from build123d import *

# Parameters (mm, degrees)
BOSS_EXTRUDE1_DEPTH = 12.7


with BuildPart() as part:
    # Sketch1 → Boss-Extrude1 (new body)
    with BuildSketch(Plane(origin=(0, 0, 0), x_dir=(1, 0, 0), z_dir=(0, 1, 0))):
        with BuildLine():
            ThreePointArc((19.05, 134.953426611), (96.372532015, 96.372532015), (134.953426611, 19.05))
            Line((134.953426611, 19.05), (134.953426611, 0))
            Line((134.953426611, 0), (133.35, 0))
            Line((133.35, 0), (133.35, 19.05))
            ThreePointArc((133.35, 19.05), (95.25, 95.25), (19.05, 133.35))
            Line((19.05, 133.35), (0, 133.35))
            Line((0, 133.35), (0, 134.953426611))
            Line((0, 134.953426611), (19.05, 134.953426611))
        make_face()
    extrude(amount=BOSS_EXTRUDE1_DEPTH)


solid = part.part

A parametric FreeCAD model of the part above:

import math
import FreeCAD as App
import Part
import Sketcher
Q = App.Units.Quantity

doc = App.newDocument("Part")
body = doc.addObject("PartDesign::Body", "Body")

# Sketch on XZ plane
sketch1 = body.newObject("Sketcher::SketchObject", "Sketch")
sketch1.AttachmentSupport = (doc.getObject("XZ_Plane"), [""])
sketch1.MapMode = "FlatFace"
sketch1.addGeometry([
    Part.ArcOfCircle(Part.Circle(App.Vector(0, 0, 0), App.Vector(0, 0, 1), 136.3), math.radians(-82), math.radians(-8)),  # 0
    Part.LineSegment(App.Vector(19.1, -135, 0), App.Vector(0, -135, 0)),  # 1
    Part.LineSegment(App.Vector(0, -135, 0), App.Vector(0, -133.3, 0)),  # 2
    Part.LineSegment(App.Vector(0, -133.3, 0), App.Vector(19.1, -133.3, 0)),  # 3
    Part.ArcOfCircle(Part.Circle(App.Vector(0, 0, 0), App.Vector(0, 0, 1), 134.7), math.radians(-82), math.radians(-8)),  # 4
    Part.LineSegment(App.Vector(133.3, -19.1, 0), App.Vector(133.3, 0, 0)),  # 5
    Part.LineSegment(App.Vector(133.3, 0, 0), App.Vector(135, 0, 0)),  # 6
    Part.LineSegment(App.Vector(135, 0, 0), App.Vector(135, -19.1, 0)),  # 7
], False)
sketch1.addConstraint([
    Sketcher.Constraint("Coincident", 0, 1, 1, 1),
    Sketcher.Constraint("Coincident", 1, 2, 2, 1),
    Sketcher.Constraint("Coincident", 2, 2, 3, 1),
    Sketcher.Constraint("Coincident", 3, 2, 4, 1),
    Sketcher.Constraint("Coincident", 4, 2, 5, 1),
    Sketcher.Constraint("Coincident", 5, 2, 6, 1),
    Sketcher.Constraint("Coincident", 6, 2, 7, 1),
    Sketcher.Constraint("Coincident", 7, 2, 0, 2),
    Sketcher.Constraint("Horizontal", 1),
    Sketcher.Constraint("Vertical", 2),
    Sketcher.Constraint("Horizontal", 3),
    Sketcher.Constraint("Vertical", 5),
    Sketcher.Constraint("Horizontal", 6),
    Sketcher.Constraint("Vertical", 7),
    Sketcher.Constraint("Coincident", 0, 3, -1, 1),
    Sketcher.Constraint("Coincident", 4, 3, -1, 1),
    Sketcher.Constraint("PointOnObject", 1, 2, -2),
    Sketcher.Constraint("PointOnObject", 5, 2, -1),
    Sketcher.Constraint("Horizontal", 4, 2, 7, 2),
    Sketcher.Constraint("Vertical", 0, 1, 3, 2),
    Sketcher.Constraint("Equal", 3, 5),
    Sketcher.Constraint("DistanceX", 1, 2, 1, 1, Q("0.75 in")),
    Sketcher.Constraint("DistanceX", 3, 2, 4, 2, Q("4.5 in")),
    Sketcher.Constraint("Radius", 0, Q("136.291342 mm")),
])
pad1 = body.newObject("PartDesign::Pad", "Pad")
pad1.Profile = sketch1
pad1.Length = Q("0.5 in")
pad1.Reversed = True

doc.recompute()
